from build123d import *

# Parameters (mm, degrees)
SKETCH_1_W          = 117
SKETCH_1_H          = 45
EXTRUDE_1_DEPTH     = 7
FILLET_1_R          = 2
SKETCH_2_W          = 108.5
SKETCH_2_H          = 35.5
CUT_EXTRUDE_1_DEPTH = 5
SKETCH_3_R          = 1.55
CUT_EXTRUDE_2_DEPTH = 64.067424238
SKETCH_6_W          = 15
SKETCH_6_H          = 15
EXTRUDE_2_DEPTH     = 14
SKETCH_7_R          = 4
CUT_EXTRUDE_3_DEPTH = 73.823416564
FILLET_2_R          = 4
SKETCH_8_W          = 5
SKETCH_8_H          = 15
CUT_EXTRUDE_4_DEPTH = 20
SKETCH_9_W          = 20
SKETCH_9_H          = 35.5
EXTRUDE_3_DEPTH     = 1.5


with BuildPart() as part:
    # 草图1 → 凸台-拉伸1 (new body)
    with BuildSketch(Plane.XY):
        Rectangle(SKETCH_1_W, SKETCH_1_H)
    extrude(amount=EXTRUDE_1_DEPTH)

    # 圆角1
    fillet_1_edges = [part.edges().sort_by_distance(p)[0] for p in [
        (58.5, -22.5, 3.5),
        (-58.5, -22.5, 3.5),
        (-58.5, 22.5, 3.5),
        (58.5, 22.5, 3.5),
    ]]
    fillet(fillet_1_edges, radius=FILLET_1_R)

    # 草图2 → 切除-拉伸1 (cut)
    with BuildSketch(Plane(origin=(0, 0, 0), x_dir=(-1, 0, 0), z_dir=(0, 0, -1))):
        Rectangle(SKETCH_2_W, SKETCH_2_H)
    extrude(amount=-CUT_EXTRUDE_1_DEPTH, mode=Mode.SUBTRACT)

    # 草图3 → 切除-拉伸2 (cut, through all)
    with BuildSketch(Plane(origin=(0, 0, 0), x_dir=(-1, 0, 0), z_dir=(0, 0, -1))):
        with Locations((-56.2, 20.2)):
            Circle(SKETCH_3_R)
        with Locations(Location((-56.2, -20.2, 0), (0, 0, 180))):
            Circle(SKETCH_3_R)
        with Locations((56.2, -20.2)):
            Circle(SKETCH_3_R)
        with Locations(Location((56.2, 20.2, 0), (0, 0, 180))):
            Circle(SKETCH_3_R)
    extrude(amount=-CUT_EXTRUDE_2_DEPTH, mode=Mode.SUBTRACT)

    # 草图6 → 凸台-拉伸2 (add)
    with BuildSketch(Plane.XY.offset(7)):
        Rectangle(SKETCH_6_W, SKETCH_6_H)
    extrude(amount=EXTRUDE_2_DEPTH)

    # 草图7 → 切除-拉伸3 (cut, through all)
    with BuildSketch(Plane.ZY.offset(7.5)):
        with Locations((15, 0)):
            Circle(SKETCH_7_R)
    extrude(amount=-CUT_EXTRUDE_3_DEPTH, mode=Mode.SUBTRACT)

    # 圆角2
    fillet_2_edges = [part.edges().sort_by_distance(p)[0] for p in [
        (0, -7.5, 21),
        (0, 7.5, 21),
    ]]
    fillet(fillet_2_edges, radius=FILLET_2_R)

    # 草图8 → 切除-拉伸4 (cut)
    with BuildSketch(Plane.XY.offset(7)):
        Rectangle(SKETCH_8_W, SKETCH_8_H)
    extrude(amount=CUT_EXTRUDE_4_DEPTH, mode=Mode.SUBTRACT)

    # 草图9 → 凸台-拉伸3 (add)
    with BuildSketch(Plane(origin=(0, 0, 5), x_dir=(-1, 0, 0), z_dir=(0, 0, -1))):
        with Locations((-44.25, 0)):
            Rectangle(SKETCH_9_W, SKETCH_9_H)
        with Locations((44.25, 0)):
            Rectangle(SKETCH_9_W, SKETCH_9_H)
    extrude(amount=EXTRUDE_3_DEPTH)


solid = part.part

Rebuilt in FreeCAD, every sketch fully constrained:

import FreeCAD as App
import Part
import Sketcher


def edges_at(feature, points):
    """Names of the edges that pass closest to the given points."""
    edges = feature.Shape.Edges
    near = lambda p: min(range(len(edges)), key=lambda i: edges[i].distToShape(Part.Vertex(*p))[0])
    return sorted({f"Edge{near(p) + 1}" for p in points})


def add_polygon(sketch, points):
    """Adds a closed chain of lines whose ends are joined by coincident constraints."""
    first, n = sketch.GeometryCount, len(points)
    for a, b in zip(points, points[1:] + points[:1]):
        sketch.addGeometry(Part.LineSegment(App.Vector(*a, 0), App.Vector(*b, 0)), False)
    for i in range(n):
        sketch.addConstraint(Sketcher.Constraint("Coincident", first + i, 2, first + (i + 1) % n, 1))

doc = App.newDocument("Part")
body = doc.addObject("PartDesign::Body", "Body")

# Sketch on XY plane
sketch1 = body.newObject("Sketcher::SketchObject", "Sketch")
sketch1.AttachmentSupport = (doc.getObject("XY_Plane"), [""])
sketch1.MapMode = "FlatFace"
add_polygon(sketch1, [(-58, 22), (-58, -22), (58, -22), (58, 22)])  # lines 0-3
sketch1.addConstraint([
    Sketcher.Constraint("Vertical", 0),
    Sketcher.Constraint("Horizontal", 1),
    Sketcher.Constraint("Vertical", 2),
    Sketcher.Constraint("Horizontal", 3),
    Sketcher.Constraint("Symmetric", 0, 2, 2, 2, -1, 1),
    Sketcher.Constraint("DistanceX", 1, 1, 1, 2, 117.0),
    Sketcher.Constraint("DistanceY", 0, 2, 0, 1, 45.0),
])
pad1 = body.newObject("PartDesign::Pad", "Pad")
pad1.Profile = sketch1
pad1.Length = 7
doc.recompute()

fillet = body.newObject("PartDesign::Fillet", "Fillet")
fillet.Base = (pad1, edges_at(pad1, [
    (58.5, -22.5, 3.5),
    (-58.5, -22.5, 3.5),
    (-58.5, 22.5, 3.5),
    (58.5, 22.5, 3.5),
]))
fillet.Radius = 2

# Sketch on XY plane
sketch2 = body.newObject("Sketcher::SketchObject", "Sketch001")
sketch2.AttachmentSupport = (doc.getObject("XY_Plane"), [""])
sketch2.MapMode = "FlatFace"
add_polygon(sketch2, [(54, 18), (54, -18), (-54, -18), (-54, 18)])  # lines 0-3
sketch2.addConstraint([
    Sketcher.Constraint("Vertical", 0),
    Sketcher.Constraint("Horizontal", 1),
    Sketcher.Constraint("Vertical", 2),
    Sketcher.Constraint("Horizontal", 3),
    Sketcher.Constraint("Symmetric", 0, 2, 2, 2, -1, 1),
    Sketcher.Constraint("DistanceX", 1, 2, 1, 1, 108.5),
    Sketcher.Constraint("DistanceY", 0, 2, 0, 1, 35.5),
])
pocket1 = body.newObject("PartDesign::Pocket", "Pocket")
pocket1.Profile = sketch2
pocket1.Length = 5
pocket1.Reversed = True

# Sketch on XY plane
sketch3 = body.newObject("Sketcher::SketchObject", "Sketch002")
sketch3.AttachmentSupport = (doc.getObject("XY_Plane"), [""])
sketch3.MapMode = "FlatFace"
sketch3.addGeometry([
    Part.Circle(App.Vector(56.2, 20.2, 0), App.Vector(0, 0, 1), 1.6),
    Part.Circle(App.Vector(56.2, -20.2, 0), App.Vector(0, 0, 1), 1.6),
    Part.Circle(App.Vector(-56.2, -20.2, 0), App.Vector(0, 0, 1), 1.6),
    Part.Circle(App.Vector(-56.2, 20.2, 0), App.Vector(0, 0, 1), 1.6),
], False)
sketch3.addConstraint([
    Sketcher.Constraint("Equal", 0, 1),
    Sketcher.Constraint("Equal", 1, 2),
    Sketcher.Constraint("Equal", 2, 3),
    Sketcher.Constraint("Symmetric", 0, 3, 2, 3, -1, 1),
    Sketcher.Constraint("Symmetric", 1, 3, 3, 3, -1, 1),
    Sketcher.Constraint("Symmetric", 1, 3, 2, 3, -2),
    Sketcher.Constraint("Diameter", 0, 3.1),
    Sketcher.Constraint("DistanceX", -1, 1, 0, 3, 56.2),
    Sketcher.Constraint("DistanceY", -1, 1, 0, 3, 20.2),
])
pocket2 = body.newObject("PartDesign::Pocket", "Pocket001")
pocket2.Profile = sketch3
pocket2.Type = "ThroughAll"
pocket2.Reversed = True

# Sketch on XY plane
sketch4 = body.newObject("Sketcher::SketchObject", "Sketch003")
sketch4.AttachmentSupport = (doc.getObject("XY_Plane"), [""])
sketch4.MapMode = "FlatFace"
sketch4.AttachmentOffset = App.Placement(App.Vector(0, 0, 7), App.Rotation())
add_polygon(sketch4, [(-8, 8), (-8, -8), (8, -8), (8, 8)])  # lines 0-3
sketch4.addConstraint([
    Sketcher.Constraint("Vertical", 0),
    Sketcher.Constraint("Horizontal", 1),
    Sketcher.Constraint("Vertical", 2),
    Sketcher.Constraint("Horizontal", 3),
    Sketcher.Constraint("Symmetric", 0, 2, 2, 2, -1, 1),
    Sketcher.Constraint("Equal", 3, 0),
    Sketcher.Constraint("DistanceX", 1, 1, 1, 2, 15.0),
])
pad2 = body.newObject("PartDesign::Pad", "Pad001")
pad2.Profile = sketch4
pad2.Length = 14

# Sketch on YZ plane
sketch5 = body.newObject("Sketcher::SketchObject", "Sketch004")
sketch5.AttachmentSupport = (doc.getObject("YZ_Plane"), [""])
sketch5.MapMode = "FlatFace"
sketch5.AttachmentOffset = App.Placement(App.Vector(0, 0, -7.5), App.Rotation())
sketch5.addGeometry(Part.Circle(App.Vector(0, 15, 0), App.Vector(0, 0, 1), 4), False)
sketch5.addConstraint([
    Sketcher.Constraint("PointOnObject", 0, 3, -2),
    Sketcher.Constraint("Diameter", 0, 8.0),
    Sketcher.Constraint("DistanceY", -1, 1, 0, 3, 15.0),
])
pocket3 = body.newObject("PartDesign::Pocket", "Pocket002")
pocket3.Profile = sketch5
pocket3.Type = "ThroughAll"
pocket3.Reversed = True
doc.recompute()

fillet2 = body.newObject("PartDesign::Fillet", "Fillet001")
fillet2.Base = (pocket3, edges_at(pocket3, [(0, -7.5, 21), (0, 7.5, 21)]))
fillet2.Radius = 4

# Sketch on XY plane
sketch6 = body.newObject("Sketcher::SketchObject", "Sketch005")
sketch6.AttachmentSupport = (doc.getObject("XY_Plane"), [""])
sketch6.MapMode = "FlatFace"
sketch6.AttachmentOffset = App.Placement(App.Vector(0, 0, 7), App.Rotation())
add_polygon(sketch6, [(-2, 8), (-2, -8), (2, -8), (2, 8)])  # lines 0-3
sketch6.addConstraint([
    Sketcher.Constraint("Vertical", 0),
    Sketcher.Constraint("Horizontal", 1),
    Sketcher.Constraint("Vertical", 2),
    Sketcher.Constraint("Horizontal", 3),
    Sketcher.Constraint("Symmetric", 0, 2, 2, 2, -1, 1),
    Sketcher.Constraint("DistanceX", 1, 1, 1, 2, 5.0),
    Sketcher.Constraint("DistanceY", 0, 2, 0, 1, 15.0),
])
pocket4 = body.newObject("PartDesign::Pocket", "Pocket003")
pocket4.Profile = sketch6
pocket4.Length = 20
pocket4.Reversed = True

# Sketch on XY plane
sketch7 = body.newObject("Sketcher::SketchObject", "Sketch006")
sketch7.AttachmentSupport = (doc.getObject("XY_Plane"), [""])
sketch7.MapMode = "FlatFace"
sketch7.AttachmentOffset = App.Placement(App.Vector(0, 0, 5), App.Rotation())
add_polygon(sketch7, [(54, 18), (54, -18), (34, -18), (34, 18)])  # lines 0-3
add_polygon(sketch7, [(-34, 18), (-34, -18), (-54, -18), (-54, 18)])  # lines 4-7
sketch7.addConstraint([
    Sketcher.Constraint("Vertical", 0),
    Sketcher.Constraint("Horizontal", 1),
    Sketcher.Constraint("Vertical", 2),
    Sketcher.Constraint("Horizontal", 3),
    Sketcher.Constraint("Vertical", 4),
    Sketcher.Constraint("Horizontal", 5),
    Sketcher.Constraint("Vertical", 6),
    Sketcher.Constraint("Horizontal", 7),
    Sketcher.Constraint("Symmetric", 2, 2, 4, 2, -1, 1),
    Sketcher.Constraint("Symmetric", 0, 2, 6, 2, -1, 1),
    Sketcher.Constraint("Horizontal", 1, 2, 4, 2),
    Sketcher.Constraint("DistanceX", 1, 2, 1, 1, 20.0),
    Sketcher.Constraint("DistanceY", 0, 2, 0, 1, 35.5),
    Sketcher.Constraint("DistanceX", 4, 2, 1, 2, 68.5),
])
pad3 = body.newObject("PartDesign::Pad", "Pad002")
pad3.Profile = sketch7
pad3.Length = 1.5
pad3.Reversed = True

doc.recompute()
